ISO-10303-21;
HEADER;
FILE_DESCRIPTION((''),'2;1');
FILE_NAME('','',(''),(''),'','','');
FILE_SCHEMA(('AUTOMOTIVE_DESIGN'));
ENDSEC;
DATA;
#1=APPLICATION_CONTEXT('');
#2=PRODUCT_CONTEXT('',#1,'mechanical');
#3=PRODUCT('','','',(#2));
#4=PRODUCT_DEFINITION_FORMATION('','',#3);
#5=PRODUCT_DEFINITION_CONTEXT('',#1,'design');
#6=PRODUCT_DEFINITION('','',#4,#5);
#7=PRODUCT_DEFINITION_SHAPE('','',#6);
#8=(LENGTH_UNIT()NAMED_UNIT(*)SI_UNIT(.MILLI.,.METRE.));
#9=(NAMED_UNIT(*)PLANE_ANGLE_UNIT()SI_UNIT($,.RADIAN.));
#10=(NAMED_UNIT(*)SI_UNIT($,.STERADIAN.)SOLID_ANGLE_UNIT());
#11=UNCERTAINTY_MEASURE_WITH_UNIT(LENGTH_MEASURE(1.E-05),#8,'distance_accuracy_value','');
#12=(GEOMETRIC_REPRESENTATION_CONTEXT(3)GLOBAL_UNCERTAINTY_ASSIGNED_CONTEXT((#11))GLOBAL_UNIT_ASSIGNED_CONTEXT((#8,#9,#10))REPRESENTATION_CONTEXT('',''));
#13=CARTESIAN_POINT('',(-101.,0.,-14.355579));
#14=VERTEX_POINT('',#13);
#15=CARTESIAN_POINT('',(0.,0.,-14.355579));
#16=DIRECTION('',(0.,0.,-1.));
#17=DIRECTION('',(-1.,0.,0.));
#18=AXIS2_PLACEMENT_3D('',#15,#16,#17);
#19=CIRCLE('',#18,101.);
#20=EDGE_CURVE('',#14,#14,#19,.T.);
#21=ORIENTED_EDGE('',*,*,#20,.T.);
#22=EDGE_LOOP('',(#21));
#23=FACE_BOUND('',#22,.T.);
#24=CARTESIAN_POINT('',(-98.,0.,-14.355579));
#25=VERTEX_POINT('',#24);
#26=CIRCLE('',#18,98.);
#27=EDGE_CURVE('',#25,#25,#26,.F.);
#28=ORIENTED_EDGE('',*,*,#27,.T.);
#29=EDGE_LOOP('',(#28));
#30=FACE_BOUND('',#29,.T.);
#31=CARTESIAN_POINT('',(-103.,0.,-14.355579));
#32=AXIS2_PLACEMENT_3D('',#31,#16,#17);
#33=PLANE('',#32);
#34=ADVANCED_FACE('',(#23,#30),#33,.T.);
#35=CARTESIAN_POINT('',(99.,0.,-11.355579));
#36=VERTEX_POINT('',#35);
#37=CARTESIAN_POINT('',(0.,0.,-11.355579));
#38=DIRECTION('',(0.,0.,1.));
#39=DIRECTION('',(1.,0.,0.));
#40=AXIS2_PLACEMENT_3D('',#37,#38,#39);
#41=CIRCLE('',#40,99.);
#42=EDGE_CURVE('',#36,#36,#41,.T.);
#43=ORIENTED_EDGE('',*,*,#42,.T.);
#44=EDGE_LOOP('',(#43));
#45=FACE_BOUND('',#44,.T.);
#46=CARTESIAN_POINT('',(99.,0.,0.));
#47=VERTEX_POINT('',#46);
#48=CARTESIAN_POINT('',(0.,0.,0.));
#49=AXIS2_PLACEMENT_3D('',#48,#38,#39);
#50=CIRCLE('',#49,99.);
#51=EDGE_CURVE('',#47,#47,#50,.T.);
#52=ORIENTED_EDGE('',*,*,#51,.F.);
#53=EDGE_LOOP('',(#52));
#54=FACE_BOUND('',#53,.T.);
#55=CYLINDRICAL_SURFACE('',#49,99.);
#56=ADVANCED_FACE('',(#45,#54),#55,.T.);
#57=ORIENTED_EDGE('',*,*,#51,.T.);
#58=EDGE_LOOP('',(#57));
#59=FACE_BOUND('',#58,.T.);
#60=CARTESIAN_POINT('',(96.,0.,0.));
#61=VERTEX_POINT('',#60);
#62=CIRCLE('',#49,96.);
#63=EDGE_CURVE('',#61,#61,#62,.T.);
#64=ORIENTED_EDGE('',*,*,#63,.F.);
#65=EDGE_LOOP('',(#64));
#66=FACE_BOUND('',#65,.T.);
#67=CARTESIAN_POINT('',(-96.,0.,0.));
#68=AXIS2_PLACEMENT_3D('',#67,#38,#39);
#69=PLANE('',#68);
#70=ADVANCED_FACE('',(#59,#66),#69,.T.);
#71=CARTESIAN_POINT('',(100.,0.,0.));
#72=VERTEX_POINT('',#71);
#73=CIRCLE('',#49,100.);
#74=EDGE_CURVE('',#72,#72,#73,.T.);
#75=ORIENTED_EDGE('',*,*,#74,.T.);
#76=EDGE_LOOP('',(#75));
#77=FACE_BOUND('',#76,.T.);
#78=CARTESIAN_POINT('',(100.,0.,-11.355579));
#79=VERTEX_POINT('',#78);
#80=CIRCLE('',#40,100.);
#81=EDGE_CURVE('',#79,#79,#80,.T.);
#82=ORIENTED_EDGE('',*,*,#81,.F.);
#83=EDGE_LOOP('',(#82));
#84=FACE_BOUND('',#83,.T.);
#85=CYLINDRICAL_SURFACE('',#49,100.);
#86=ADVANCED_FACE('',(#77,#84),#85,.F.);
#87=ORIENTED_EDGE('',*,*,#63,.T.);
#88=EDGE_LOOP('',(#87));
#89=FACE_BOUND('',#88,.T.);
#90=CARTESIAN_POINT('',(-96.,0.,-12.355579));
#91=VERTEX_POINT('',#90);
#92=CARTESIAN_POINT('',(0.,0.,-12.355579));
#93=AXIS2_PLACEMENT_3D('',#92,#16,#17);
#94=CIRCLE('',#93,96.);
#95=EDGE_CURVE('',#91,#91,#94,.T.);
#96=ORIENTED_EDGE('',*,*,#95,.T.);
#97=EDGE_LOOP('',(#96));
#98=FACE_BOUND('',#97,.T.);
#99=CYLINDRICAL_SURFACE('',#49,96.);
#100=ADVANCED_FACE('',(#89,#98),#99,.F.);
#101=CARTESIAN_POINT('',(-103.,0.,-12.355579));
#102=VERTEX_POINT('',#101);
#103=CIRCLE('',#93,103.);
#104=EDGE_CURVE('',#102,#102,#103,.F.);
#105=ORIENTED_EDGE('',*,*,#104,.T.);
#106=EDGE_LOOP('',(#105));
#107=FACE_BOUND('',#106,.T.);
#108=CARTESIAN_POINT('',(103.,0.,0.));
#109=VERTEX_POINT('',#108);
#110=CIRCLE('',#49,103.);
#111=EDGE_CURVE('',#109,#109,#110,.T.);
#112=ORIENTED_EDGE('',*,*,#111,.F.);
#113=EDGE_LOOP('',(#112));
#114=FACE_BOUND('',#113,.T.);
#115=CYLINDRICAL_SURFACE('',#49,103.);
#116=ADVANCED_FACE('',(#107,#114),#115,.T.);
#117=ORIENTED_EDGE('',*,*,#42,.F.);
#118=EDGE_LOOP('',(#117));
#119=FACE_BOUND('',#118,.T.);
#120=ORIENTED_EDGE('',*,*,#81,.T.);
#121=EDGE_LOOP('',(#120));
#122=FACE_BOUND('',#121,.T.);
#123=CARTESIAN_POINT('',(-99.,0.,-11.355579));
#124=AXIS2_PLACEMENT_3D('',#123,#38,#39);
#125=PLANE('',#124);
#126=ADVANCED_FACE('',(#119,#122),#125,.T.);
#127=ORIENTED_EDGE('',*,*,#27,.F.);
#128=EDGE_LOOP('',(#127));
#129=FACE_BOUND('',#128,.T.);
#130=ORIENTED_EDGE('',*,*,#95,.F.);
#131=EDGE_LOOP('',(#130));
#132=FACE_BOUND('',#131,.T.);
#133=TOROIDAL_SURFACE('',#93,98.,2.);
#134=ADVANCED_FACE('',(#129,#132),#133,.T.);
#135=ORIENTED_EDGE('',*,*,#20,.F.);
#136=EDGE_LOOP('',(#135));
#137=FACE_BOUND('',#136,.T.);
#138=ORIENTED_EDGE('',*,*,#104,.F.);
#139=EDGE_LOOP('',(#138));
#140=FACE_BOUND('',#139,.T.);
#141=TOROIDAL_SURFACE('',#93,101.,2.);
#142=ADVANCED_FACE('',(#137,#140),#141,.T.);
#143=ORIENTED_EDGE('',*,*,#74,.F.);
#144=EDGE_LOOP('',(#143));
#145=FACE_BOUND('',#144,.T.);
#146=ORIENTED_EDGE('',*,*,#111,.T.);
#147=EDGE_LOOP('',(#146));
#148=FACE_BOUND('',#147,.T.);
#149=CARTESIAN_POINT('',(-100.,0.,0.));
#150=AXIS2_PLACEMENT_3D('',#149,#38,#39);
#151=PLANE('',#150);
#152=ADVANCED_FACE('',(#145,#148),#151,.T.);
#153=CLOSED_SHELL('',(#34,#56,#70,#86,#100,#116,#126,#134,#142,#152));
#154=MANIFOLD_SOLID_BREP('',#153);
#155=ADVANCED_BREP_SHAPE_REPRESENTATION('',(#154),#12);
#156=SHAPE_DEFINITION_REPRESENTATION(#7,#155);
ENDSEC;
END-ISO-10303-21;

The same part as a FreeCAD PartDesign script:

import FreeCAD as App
import Part
import Sketcher
from FreeCAD import Vector


def edges_at(feature, points):
    """Names of the edges that pass closest to the given points."""
    edges = feature.Shape.Edges
    near = lambda p: min(range(len(edges)), key=lambda i: edges[i].distToShape(Part.Vertex(*p))[0])
    return sorted({f"Edge{near(p) + 1}" for p in points})

doc = App.newDocument("Part")
params = doc.addObject("Spreadsheet::Sheet", "Params")
for row, (alias, value) in enumerate([
    ("sketch1_width", "3 mm"),
    ("sketch1_width2", "7 mm"),
    ("revolution_angle", "360 deg"),
    ("fillet_radius", "2 mm"),
    ("fillet2_radius", "2 mm"),
], start=1):
    params.set(f"A{row}", alias)
    params.set(f"B{row}", "=" + value)
    params.setAlias(f"B{row}", alias)

body = doc.addObject("PartDesign::Body", "Body")

sketch1 = body.newObject("Sketcher::SketchObject", "Sketch")
sketch1.AttachmentSupport = (doc.getObject("XZ_Plane"), [""])
sketch1.MapMode = "FlatFace"
sketch1.addGeometry(Part.LineSegment(Vector(-99, -11.4, 0), Vector(-99, 0, 0)), False)
sketch1.addGeometry(Part.LineSegment(Vector(-99, 0, 0), Vector(-96, 0, 0)), False)
sketch1.addGeometry(Part.LineSegment(Vector(-96, 0, 0), Vector(-96, -14.4, 0)), False)
sketch1.addGeometry(Part.LineSegment(Vector(-96, -14.4, 0), Vector(-103, -14.4, 0)), False)
sketch1.addGeometry(Part.LineSegment(Vector(-103, -14.4, 0), Vector(-103, 0, 0)), False)
sketch1.addGeometry(Part.LineSegment(Vector(-103, 0, 0), Vector(-100, 0, 0)), False)
sketch1.addGeometry(Part.LineSegment(Vector(-100, 0, 0), Vector(-100, -11.4, 0)), False)
sketch1.addGeometry(Part.LineSegment(Vector(-100, -11.4, 0), Vector(-99, -11.4, 0)), False)
sketch1.addConstraint(Sketcher.Constraint("Coincident", 0, 2, 1, 1))
sketch1.addConstraint(Sketcher.Constraint("Coincident", 1, 2, 2, 1))
sketch1.addConstraint(Sketcher.Constraint("Coincident", 2, 2, 3, 1))
sketch1.addConstraint(Sketcher.Constraint("Coincident", 3, 2, 4, 1))
sketch1.addConstraint(Sketcher.Constraint("Coincident", 4, 2, 5, 1))
sketch1.addConstraint(Sketcher.Constraint("Coincident", 5, 2, 6, 1))
sketch1.addConstraint(Sketcher.Constraint("Coincident", 6, 2, 7, 1))
sketch1.addConstraint(Sketcher.Constraint("Coincident", 7, 2, 0, 1))
sketch1.addConstraint(Sketcher.Constraint("Vertical", 0))
sketch1.addConstraint(Sketcher.Constraint("Horizontal", 1))
sketch1.addConstraint(Sketcher.Constraint("Vertical", 2))
sketch1.addConstraint(Sketcher.Constraint("Horizontal", 3))
sketch1.addConstraint(Sketcher.Constraint("Vertical", 4))
sketch1.addConstraint(Sketcher.Constraint("Horizontal", 5))
sketch1.addConstraint(Sketcher.Constraint("Vertical", 6))
sketch1.addConstraint(Sketcher.Constraint("Horizontal", 7))
sketch1.addConstraint(Sketcher.Constraint("PointOnObject", 0, 2, -1))
sketch1.addConstraint(Sketcher.Constraint("PointOnObject", 4, 2, -1))
sketch1.addConstraint(Sketcher.Constraint("Equal", 1, 5))
sketch1.addConstraint(Sketcher.Constraint("DistanceX", 1, 1, 1, 2, 3.0))
sketch1.addConstraint(Sketcher.Constraint("DistanceX", 3, 2, 3, 1, 7.0))
sketch1.addConstraint(Sketcher.Constraint("DistanceX", 0, 2, -1, 1, 99.0))
sketch1.addConstraint(Sketcher.Constraint("DistanceY", 3, 2, 6, 2, 3.0))
sketch1.addConstraint(Sketcher.Constraint("DistanceY", 0, 1, 0, 2, 11.355579))
sketch1.setExpression("Constraints[19]", "Params.sketch1_width")
sketch1.setExpression("Constraints[20]", "Params.sketch1_width2")
revolution = body.newObject("PartDesign::Revolution", "Revolution")
revolution.Profile = sketch1
revolution.ReferenceAxis = (sketch1, ["V_Axis"])
revolution.setExpression("Angle", "Params.revolution_angle")
doc.recompute()

fillet = body.newObject("PartDesign::Fillet", "Fillet")
fillet.Base = (revolution, edges_at(revolution, [(-103, 0, -14.356)]))
fillet.setExpression("Radius", "Params.fillet_radius")
doc.recompute()

fillet2 = body.newObject("PartDesign::Fillet", "Fillet001")
fillet2.Base = (fillet, edges_at(fillet, [(-96, 0, -14.356)]))
fillet2.setExpression("Radius", "Params.fillet2_radius")

doc.recompute()
